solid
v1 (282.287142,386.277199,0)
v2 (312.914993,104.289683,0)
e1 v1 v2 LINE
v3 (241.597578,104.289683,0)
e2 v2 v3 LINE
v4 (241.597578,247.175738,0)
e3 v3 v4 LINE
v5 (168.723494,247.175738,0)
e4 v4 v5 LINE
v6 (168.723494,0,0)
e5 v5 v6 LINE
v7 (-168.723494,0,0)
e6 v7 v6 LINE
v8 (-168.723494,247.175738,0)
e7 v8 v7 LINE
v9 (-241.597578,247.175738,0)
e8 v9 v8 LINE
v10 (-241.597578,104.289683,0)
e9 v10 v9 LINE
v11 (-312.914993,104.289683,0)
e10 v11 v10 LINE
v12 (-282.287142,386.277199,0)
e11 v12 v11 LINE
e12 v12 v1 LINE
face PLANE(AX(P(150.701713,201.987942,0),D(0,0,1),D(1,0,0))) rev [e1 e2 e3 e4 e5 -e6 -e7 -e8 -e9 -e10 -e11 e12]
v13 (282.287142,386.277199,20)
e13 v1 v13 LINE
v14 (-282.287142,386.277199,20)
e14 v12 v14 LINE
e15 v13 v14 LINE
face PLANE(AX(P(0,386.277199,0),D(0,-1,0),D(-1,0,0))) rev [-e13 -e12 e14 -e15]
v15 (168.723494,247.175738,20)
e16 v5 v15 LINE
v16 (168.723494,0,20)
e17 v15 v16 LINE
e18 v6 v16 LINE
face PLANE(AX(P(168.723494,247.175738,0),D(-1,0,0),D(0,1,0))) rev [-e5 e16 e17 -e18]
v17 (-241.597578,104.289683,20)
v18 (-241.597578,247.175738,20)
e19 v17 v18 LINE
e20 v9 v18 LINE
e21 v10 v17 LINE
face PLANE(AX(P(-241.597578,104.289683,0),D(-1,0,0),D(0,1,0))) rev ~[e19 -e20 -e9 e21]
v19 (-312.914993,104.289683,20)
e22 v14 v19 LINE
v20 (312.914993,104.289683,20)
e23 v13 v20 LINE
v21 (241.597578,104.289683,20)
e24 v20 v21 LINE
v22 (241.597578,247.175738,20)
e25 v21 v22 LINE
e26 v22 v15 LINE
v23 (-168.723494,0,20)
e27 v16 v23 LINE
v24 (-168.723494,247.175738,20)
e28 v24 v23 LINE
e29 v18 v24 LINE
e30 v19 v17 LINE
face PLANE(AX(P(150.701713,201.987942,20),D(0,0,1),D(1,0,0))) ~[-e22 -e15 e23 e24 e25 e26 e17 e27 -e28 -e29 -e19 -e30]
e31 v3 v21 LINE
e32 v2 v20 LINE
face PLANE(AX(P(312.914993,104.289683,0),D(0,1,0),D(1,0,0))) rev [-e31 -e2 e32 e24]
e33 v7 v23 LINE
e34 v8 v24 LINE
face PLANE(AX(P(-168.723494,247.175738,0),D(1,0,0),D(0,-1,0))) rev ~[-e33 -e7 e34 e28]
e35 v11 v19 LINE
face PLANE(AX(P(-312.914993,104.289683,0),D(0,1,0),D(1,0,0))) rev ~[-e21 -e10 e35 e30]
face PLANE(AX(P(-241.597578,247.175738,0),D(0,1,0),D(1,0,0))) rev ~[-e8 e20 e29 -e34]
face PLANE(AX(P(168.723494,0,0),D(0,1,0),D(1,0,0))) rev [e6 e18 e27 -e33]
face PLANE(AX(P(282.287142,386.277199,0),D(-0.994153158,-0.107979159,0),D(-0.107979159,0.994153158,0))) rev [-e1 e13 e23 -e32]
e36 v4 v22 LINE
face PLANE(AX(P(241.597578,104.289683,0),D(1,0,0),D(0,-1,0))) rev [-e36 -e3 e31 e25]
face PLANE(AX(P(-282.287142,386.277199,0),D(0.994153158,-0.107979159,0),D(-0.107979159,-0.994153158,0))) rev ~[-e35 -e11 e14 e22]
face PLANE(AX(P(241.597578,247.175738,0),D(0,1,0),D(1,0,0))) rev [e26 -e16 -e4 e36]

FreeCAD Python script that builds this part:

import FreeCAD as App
import Part
import Sketcher

V = App.Vector
Q = App.Units.Quantity


def add_polygon(sketch, points):
    """Adds a closed chain of lines whose ends are joined by coincident constraints."""
    first, n = sketch.GeometryCount, len(points)
    for a, b in zip(points, points[1:] + points[:1]):
        sketch.addGeometry(Part.LineSegment(App.Vector(*a, 0), App.Vector(*b, 0)), False)
    for i in range(n):
        sketch.addConstraint(Sketcher.Constraint("Coincident", first + i, 2, first + (i + 1) % n, 1))

doc = App.newDocument("Part")
body = doc.addObject("PartDesign::Body", "Body")

# Sketch on XY plane
sketch1 = body.newObject("Sketcher::SketchObject", "Sketch")
sketch1.AttachmentSupport = (doc.getObject("XY_Plane"), [""])
sketch1.MapMode = "FlatFace"
add_polygon(sketch1, [(-168.723494, 0), (0, 0), (0, 386.277199), (-282.287142, 386.277199), (-312.914993, 104.289683), (-241.597578, 104.289683), (-241.597578, 247.175738), (-168.723494, 247.175738)])  # lines 0-7
sketch1.addConstraint([
    Sketcher.Constraint("Horizontal", 0),
    Sketcher.Constraint("Vertical", 1),
    Sketcher.Constraint("Horizontal", 2),
    Sketcher.Constraint("Horizontal", 4),
    Sketcher.Constraint("Vertical", 5),
    Sketcher.Constraint("Horizontal", 6),
    Sketcher.Constraint("Vertical", 7),
    Sketcher.Constraint("Coincident", 0, 2, -1, 1),
    Sketcher.Constraint("DistanceY", 1, 1, 1, 2, Q("386.277199 mm")),
    Sketcher.Constraint("DistanceX", 2, 2, 2, 1, Q("282.287142 mm")),
    Sketcher.Constraint("DistanceY", 7, 2, 7, 1, Q("247.175738 mm")),
    Sketcher.Constraint("DistanceX", 3, 2, 6, 2, Q("144.191499 mm")),
    Sketcher.Constraint("Distance", 3, Q("283.645949 mm")),
    Sketcher.Constraint("DistanceX", 0, 1, 0, 2, Q("168.723494 mm")),
    Sketcher.Constraint("DistanceX", 4, 1, 4, 2, Q("71.317415 mm")),
])
pad1 = body.newObject("PartDesign::Pad", "Pad")
pad1.Profile = sketch1
pad1.Length = 20
body2 = doc.addObject("PartDesign::Body", "Body001")
doc.recompute()

body2.BaseFeature = body
doc.recompute()

mirroring = doc.addObject("Part::Mirroring", "Mirroring")
mirroring.Source = body
mirroring.Base = V(0, 0, 0)
mirroring.Normal = V(1, 0, 0)
body3 = doc.addObject("PartDesign::Body", "Body002")
body3.BaseFeature = mirroring
boolean = body2.newObject("PartDesign::Boolean", "Boolean")
boolean.Type = "Fuse"
boolean.addObjects([body3])
doc.recompute()
mirroring.Visibility = False

doc.recompute()
